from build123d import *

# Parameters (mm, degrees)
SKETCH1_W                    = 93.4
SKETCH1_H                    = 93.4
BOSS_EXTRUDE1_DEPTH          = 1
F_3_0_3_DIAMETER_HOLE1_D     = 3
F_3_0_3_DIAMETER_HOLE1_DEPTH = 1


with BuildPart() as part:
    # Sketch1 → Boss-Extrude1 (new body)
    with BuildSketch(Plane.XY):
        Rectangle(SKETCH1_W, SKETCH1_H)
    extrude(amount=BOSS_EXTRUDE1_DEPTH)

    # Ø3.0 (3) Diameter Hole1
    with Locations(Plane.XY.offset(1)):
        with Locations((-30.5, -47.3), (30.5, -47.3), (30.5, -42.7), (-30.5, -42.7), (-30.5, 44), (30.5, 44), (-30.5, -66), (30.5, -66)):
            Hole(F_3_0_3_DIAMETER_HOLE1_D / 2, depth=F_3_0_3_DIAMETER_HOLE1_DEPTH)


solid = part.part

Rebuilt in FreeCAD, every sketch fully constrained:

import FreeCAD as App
import Part
import Sketcher

V = App.Vector
Q = App.Units.Quantity

doc = App.newDocument("Part")
body = doc.addObject("PartDesign::Body", "Body")

# Sketch on XY plane
sketch1 = doc.addObject("Sketcher::SketchObject", "Sketch")
body.addObject(sketch1)
sketch1.AttachmentSupport = (doc.XY_Plane, [""])
sketch1.MapMode = "FlatFace"
sketch1.addGeometry(Part.LineSegment(V(-46.7, 46.7, 0), V(-46.7, -46.7, 0)), False)
sketch1.addGeometry(Part.LineSegment(V(-46.7, -46.7, 0), V(46.7, -46.7, 0)), False)
sketch1.addGeometry(Part.LineSegment(V(46.7, -46.7, 0), V(46.7, 46.7, 0)), False)
sketch1.addGeometry(Part.LineSegment(V(46.7, 46.7, 0), V(-46.7, 46.7, 0)), False)
sketch1.addConstraint(Sketcher.Constraint("Coincident", 0, 2, 1, 1))
sketch1.addConstraint(Sketcher.Constraint("Coincident", 1, 2, 2, 1))
sketch1.addConstraint(Sketcher.Constraint("Coincident", 2, 2, 3, 1))
sketch1.addConstraint(Sketcher.Constraint("Coincident", 3, 2, 0, 1))
sketch1.addConstraint(Sketcher.Constraint("Vertical", 0))
sketch1.addConstraint(Sketcher.Constraint("Horizontal", 1))
sketch1.addConstraint(Sketcher.Constraint("Vertical", 2))
sketch1.addConstraint(Sketcher.Constraint("Horizontal", 3))
sketch1.addConstraint(Sketcher.Constraint("Symmetric", 0, 2, 2, 2, -1, 1))
sketch1.addConstraint(Sketcher.Constraint("Equal", 3, 0))
sketch1.addConstraint(Sketcher.Constraint("DistanceX", 1, 1, 1, 2, Q("93.4 mm")))
pad1 = doc.addObject("PartDesign::Pad", "Pad")
body.addObject(pad1)
pad1.Profile = sketch1
pad1.Length = 1

# Sketch on XY plane
sketch2 = doc.addObject("Sketcher::SketchObject", "Sketch001")
body.addObject(sketch2)
sketch2.AttachmentSupport = (doc.XY_Plane, [""])
sketch2.MapMode = "FlatFace"
sketch2.AttachmentOffset = App.Placement(V(0, 0, 1), App.Rotation())
sketch2.addGeometry(Part.Circle(V(-30.5, -47.3, 0), V(0, 0, 1), 1.5), False)
sketch2.addGeometry(Part.Circle(V(30.5, -47.3, 0), V(0, 0, 1), 1.5), False)
sketch2.addGeometry(Part.Circle(V(30.5, -42.7, 0), V(0, 0, 1), 1.5), False)
sketch2.addGeometry(Part.Circle(V(-30.5, -42.7, 0), V(0, 0, 1), 1.5), False)
sketch2.addGeometry(Part.Circle(V(-30.5, 44, 0), V(0, 0, 1), 1.5), False)
sketch2.addGeometry(Part.Circle(V(30.5, 44, 0), V(0, 0, 1), 1.5), False)
sketch2.addGeometry(Part.Circle(V(-30.5, -66, 0), V(0, 0, 1), 1.5), False)
sketch2.addGeometry(Part.Circle(V(30.5, -66, 0), V(0, 0, 1), 1.5), False)
sketch2.addConstraint(Sketcher.Constraint("Equal", 0, 1))
sketch2.addConstraint(Sketcher.Constraint("Equal", 1, 2))
sketch2.addConstraint(Sketcher.Constraint("Equal", 2, 3))
sketch2.addConstraint(Sketcher.Constraint("Equal", 3, 4))
sketch2.addConstraint(Sketcher.Constraint("Equal", 4, 5))
sketch2.addConstraint(Sketcher.Constraint("Equal", 5, 6))
sketch2.addConstraint(Sketcher.Constraint("Equal", 6, 7))
sketch2.addConstraint(Sketcher.Constraint("Symmetric", 0, 3, 1, 3, -2))
sketch2.addConstraint(Sketcher.Constraint("Symmetric", 2, 3, 3, 3, -2))
sketch2.addConstraint(Sketcher.Constraint("Symmetric", 4, 3, 5, 3, -2))
sketch2.addConstraint(Sketcher.Constraint("Symmetric", 6, 3, 7, 3, -2))
sketch2.addConstraint(Sketcher.Constraint("Vertical", 1, 3, 2, 3))
sketch2.addConstraint(Sketcher.Constraint("Vertical", 3, 3, 4, 3))
sketch2.addConstraint(Sketcher.Constraint("Vertical", 4, 3, 6, 3))
sketch2.addConstraint(Sketcher.Constraint("Diameter", 0, Q("3 mm")))
sketch2.addConstraint(Sketcher.Constraint("DistanceY", -1, 1, 4, 3, Q("44 mm")))
sketch2.addConstraint(Sketcher.Constraint("DistanceY", 6, 3, -1, 1, Q("66 mm")))
sketch2.addConstraint(Sketcher.Constraint("DistanceX", 0, 3, 1, 3, Q("61 mm")))
sketch2.addConstraint(Sketcher.Constraint("DistanceY", 0, 3, -1, 1, Q("47.3 mm")))
sketch2.addConstraint(Sketcher.Constraint("DistanceY", 2, 3, -1, 1, Q("42.7 mm")))
doc.recompute()
hole = doc.addObject("PartDesign::Hole", "Hole")
body.addObject(hole)
hole.Profile = sketch2
hole.ThreadType = "None"
hole.Diameter = 3
hole.DepthType = "Dimension"
hole.Depth = 1
hole.DrillPoint = "Flat"

doc.recompute()
